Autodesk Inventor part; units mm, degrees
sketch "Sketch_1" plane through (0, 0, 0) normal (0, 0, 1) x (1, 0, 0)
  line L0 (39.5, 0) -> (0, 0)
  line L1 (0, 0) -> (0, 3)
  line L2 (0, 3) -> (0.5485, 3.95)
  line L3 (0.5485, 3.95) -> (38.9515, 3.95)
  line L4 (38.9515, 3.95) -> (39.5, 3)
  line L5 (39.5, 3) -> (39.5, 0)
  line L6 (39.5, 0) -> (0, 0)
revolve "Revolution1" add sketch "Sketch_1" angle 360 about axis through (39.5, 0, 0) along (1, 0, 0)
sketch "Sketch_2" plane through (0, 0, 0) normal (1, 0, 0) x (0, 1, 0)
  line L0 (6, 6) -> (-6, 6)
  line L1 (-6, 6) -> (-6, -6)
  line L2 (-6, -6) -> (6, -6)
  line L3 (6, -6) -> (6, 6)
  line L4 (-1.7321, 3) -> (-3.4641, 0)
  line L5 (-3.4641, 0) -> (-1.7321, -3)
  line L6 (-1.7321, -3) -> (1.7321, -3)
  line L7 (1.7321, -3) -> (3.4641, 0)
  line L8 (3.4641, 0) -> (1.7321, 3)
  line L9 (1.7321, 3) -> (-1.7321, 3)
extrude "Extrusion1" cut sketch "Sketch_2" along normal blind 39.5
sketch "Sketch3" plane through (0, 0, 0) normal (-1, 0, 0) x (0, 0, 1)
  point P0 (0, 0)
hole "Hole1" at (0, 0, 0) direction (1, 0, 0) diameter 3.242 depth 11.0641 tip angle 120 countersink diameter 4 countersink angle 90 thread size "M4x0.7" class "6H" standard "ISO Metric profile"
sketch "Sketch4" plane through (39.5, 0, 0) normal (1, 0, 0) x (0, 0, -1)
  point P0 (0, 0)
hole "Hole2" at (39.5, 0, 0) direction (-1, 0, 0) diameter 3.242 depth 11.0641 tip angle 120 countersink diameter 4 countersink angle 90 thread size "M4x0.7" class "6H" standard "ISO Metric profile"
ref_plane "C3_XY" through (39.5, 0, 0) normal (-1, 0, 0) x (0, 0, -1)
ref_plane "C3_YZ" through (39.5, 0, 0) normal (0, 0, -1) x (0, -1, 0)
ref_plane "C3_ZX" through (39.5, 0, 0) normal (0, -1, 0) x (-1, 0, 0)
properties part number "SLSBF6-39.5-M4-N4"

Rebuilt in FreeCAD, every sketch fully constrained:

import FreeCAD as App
import Part
import Sketcher
from FreeCAD import Vector
Q = App.Units.Quantity

doc = App.newDocument("Part")
body = doc.addObject("PartDesign::Body", "Body")

sketch1 = body.newObject("Sketcher::SketchObject", "Sketch")
sketch1.AttachmentSupport = (doc.getObject("XY_Plane"), [""])
sketch1.MapMode = "FlatFace"
sketch1.addGeometry(Part.LineSegment(Vector(0, 0, 0), Vector(39.5, 0, 0)), False)
sketch1.addGeometry(Part.LineSegment(Vector(39.5, 0, 0), Vector(39.5, 3, 0)), False)
sketch1.addGeometry(Part.LineSegment(Vector(39.5, 3, 0), Vector(39, 4, 0)), False)
sketch1.addGeometry(Part.LineSegment(Vector(39, 4, 0), Vector(0.5, 4, 0)), False)
sketch1.addGeometry(Part.LineSegment(Vector(0.5, 4, 0), Vector(0, 3, 0)), False)
sketch1.addGeometry(Part.LineSegment(Vector(0, 3, 0), Vector(0, 0, 0)), False)
sketch1.addConstraint(Sketcher.Constraint("Coincident", 0, 2, 1, 1))
sketch1.addConstraint(Sketcher.Constraint("Coincident", 1, 2, 2, 1))
sketch1.addConstraint(Sketcher.Constraint("Coincident", 2, 2, 3, 1))
sketch1.addConstraint(Sketcher.Constraint("Coincident", 3, 2, 4, 1))
sketch1.addConstraint(Sketcher.Constraint("Coincident", 4, 2, 5, 1))
sketch1.addConstraint(Sketcher.Constraint("Coincident", 5, 2, 0, 1))
sketch1.addConstraint(Sketcher.Constraint("Horizontal", 0))
sketch1.addConstraint(Sketcher.Constraint("Vertical", 1))
sketch1.addConstraint(Sketcher.Constraint("Horizontal", 3))
sketch1.addConstraint(Sketcher.Constraint("Vertical", 5))
sketch1.addConstraint(Sketcher.Constraint("Coincident", 5, 2, -1, 1))
sketch1.addConstraint(Sketcher.Constraint("Horizontal", 1, 2, 4, 2))
sketch1.addConstraint(Sketcher.Constraint("Equal", 2, 4))
sketch1.addConstraint(Sketcher.Constraint("DistanceY", 1, 1, 1, 2, 3.0))
sketch1.addConstraint(Sketcher.Constraint("Angle", 2, Q("120.0008 deg")))
sketch1.addConstraint(Sketcher.Constraint("DistanceX", 0, 1, 0, 2, 39.5))
sketch1.addConstraint(Sketcher.Constraint("DistanceX", 3, 2, 3, 1, 38.403))
revolution = body.newObject("PartDesign::Revolution", "Revolution")
revolution.Profile = sketch1
revolution.ReferenceAxis = (sketch1, ["H_Axis"])
revolution.Angle = 360

sketch2 = body.newObject("Sketcher::SketchObject", "Sketch001")
sketch2.AttachmentSupport = (doc.getObject("YZ_Plane"), [""])
sketch2.MapMode = "FlatFace"
sketch2.addGeometry(Part.LineSegment(Vector(6, -6, 0), Vector(6, 6, 0)), False)
sketch2.addGeometry(Part.LineSegment(Vector(6, 6, 0), Vector(-6, 6, 0)), False)
sketch2.addGeometry(Part.LineSegment(Vector(-6, 6, 0), Vector(-6, -6, 0)), False)
sketch2.addGeometry(Part.LineSegment(Vector(-6, -6, 0), Vector(6, -6, 0)), False)
sketch2.addGeometry(Part.LineSegment(Vector(-3.5, 0, 0), Vector(-1.7, 3, 0)), False)
sketch2.addGeometry(Part.LineSegment(Vector(-1.7, 3, 0), Vector(1.7, 3, 0)), False)
sketch2.addGeometry(Part.LineSegment(Vector(1.7, 3, 0), Vector(3.5, 0, 0)), False)
sketch2.addGeometry(Part.LineSegment(Vector(3.5, 0, 0), Vector(1.7, -3, 0)), False)
sketch2.addGeometry(Part.LineSegment(Vector(1.7, -3, 0), Vector(-1.7, -3, 0)), False)
sketch2.addGeometry(Part.LineSegment(Vector(-1.7, -3, 0), Vector(-3.5, 0, 0)), False)
sketch2.addConstraint(Sketcher.Constraint("Coincident", 0, 2, 1, 1))
sketch2.addConstraint(Sketcher.Constraint("Coincident", 1, 2, 2, 1))
sketch2.addConstraint(Sketcher.Constraint("Coincident", 2, 2, 3, 1))
sketch2.addConstraint(Sketcher.Constraint("Coincident", 3, 2, 0, 1))
sketch2.addConstraint(Sketcher.Constraint("Coincident", 4, 2, 5, 1))
sketch2.addConstraint(Sketcher.Constraint("Coincident", 5, 2, 6, 1))
sketch2.addConstraint(Sketcher.Constraint("Coincident", 6, 2, 7, 1))
sketch2.addConstraint(Sketcher.Constraint("Coincident", 7, 2, 8, 1))
sketch2.addConstraint(Sketcher.Constraint("Coincident", 8, 2, 9, 1))
sketch2.addConstraint(Sketcher.Constraint("Coincident", 9, 2, 4, 1))
sketch2.addConstraint(Sketcher.Constraint("Vertical", 0))
sketch2.addConstraint(Sketcher.Constraint("Horizontal", 1))
sketch2.addConstraint(Sketcher.Constraint("Vertical", 2))
sketch2.addConstraint(Sketcher.Constraint("Horizontal", 3))
sketch2.addConstraint(Sketcher.Constraint("Horizontal", 5))
sketch2.addConstraint(Sketcher.Constraint("Horizontal", 8))
sketch2.addConstraint(Sketcher.Constraint("Symmetric", 0, 2, 2, 2, -1, 1))
sketch2.addConstraint(Sketcher.Constraint("Symmetric", 4, 2, 7, 2, -1, 1))
sketch2.addConstraint(Sketcher.Constraint("Symmetric", 6, 2, 9, 2, -1, 1))
sketch2.addConstraint(Sketcher.Constraint("PointOnObject", 6, 2, -1))
sketch2.addConstraint(Sketcher.Constraint("Parallel", 6, 9))
sketch2.addConstraint(Sketcher.Constraint("Vertical", 5, 2, 7, 2))
sketch2.addConstraint(Sketcher.Constraint("Equal", 3, 0))
sketch2.addConstraint(Sketcher.Constraint("DistanceX", 1, 2, 1, 1, 12.0))
sketch2.addConstraint(Sketcher.Constraint("Angle", 4, Q("60.0007 deg")))
sketch2.addConstraint(Sketcher.Constraint("DistanceY", -1, 1, 4, 2, 3.0))
sketch2.addConstraint(Sketcher.Constraint("DistanceX", 5, 1, 5, 2, 3.4642))
pocket1 = body.newObject("PartDesign::Pocket", "Pocket")
pocket1.Profile = sketch2
pocket1.Length = 39.5
pocket1.Reversed = True

sketch3 = body.newObject("Sketcher::SketchObject", "Sketch002")
sketch3.AttachmentSupport = (doc.getObject("YZ_Plane"), [""])
sketch3.MapMode = "FlatFace"
sketch3.addGeometry(Part.Circle(Vector(0, 0, 0), Vector(0, 0, 1), 1.6), False)
sketch3.addConstraint(Sketcher.Constraint("Coincident", 0, 3, -1, 1))
sketch3.addConstraint(Sketcher.Constraint("Diameter", 0, 3.242))
doc.recompute()
hole = body.newObject("PartDesign::Hole", "Hole")
hole.Profile = sketch3
hole.ThreadType = "None"
hole.Diameter = 3.242
hole.DepthType = "Dimension"
hole.Depth = 11.0641
hole.DrillPoint = "Angled"
hole.DrillPointAngle = 120
hole.HoleCutType = "Countersink"
hole.HoleCutDiameter = 4
hole.HoleCutCountersinkAngle = 90
hole.Reversed = True

sketch4 = body.newObject("Sketcher::SketchObject", "Sketch003")
sketch4.AttachmentSupport = (doc.getObject("YZ_Plane"), [""])
sketch4.MapMode = "FlatFace"
sketch4.AttachmentOffset = App.Placement(Vector(0, 0, 39.5), App.Rotation())
sketch4.addGeometry(Part.Circle(Vector(0, 0, 0), Vector(0, 0, 1), 1.6), False)
sketch4.addConstraint(Sketcher.Constraint("Coincident", 0, 3, -1, 1))
sketch4.addConstraint(Sketcher.Constraint("Diameter", 0, 3.242))
doc.recompute()
hole2 = body.newObject("PartDesign::Hole", "Hole001")
hole2.Profile = sketch4
hole2.ThreadType = "None"
hole2.Diameter = 3.242
hole2.DepthType = "Dimension"
hole2.Depth = 11.0641
hole2.DrillPoint = "Angled"
hole2.DrillPointAngle = 120
hole2.HoleCutType = "Countersink"
hole2.HoleCutDiameter = 4
hole2.HoleCutCountersinkAngle = 90

doc.recompute()
